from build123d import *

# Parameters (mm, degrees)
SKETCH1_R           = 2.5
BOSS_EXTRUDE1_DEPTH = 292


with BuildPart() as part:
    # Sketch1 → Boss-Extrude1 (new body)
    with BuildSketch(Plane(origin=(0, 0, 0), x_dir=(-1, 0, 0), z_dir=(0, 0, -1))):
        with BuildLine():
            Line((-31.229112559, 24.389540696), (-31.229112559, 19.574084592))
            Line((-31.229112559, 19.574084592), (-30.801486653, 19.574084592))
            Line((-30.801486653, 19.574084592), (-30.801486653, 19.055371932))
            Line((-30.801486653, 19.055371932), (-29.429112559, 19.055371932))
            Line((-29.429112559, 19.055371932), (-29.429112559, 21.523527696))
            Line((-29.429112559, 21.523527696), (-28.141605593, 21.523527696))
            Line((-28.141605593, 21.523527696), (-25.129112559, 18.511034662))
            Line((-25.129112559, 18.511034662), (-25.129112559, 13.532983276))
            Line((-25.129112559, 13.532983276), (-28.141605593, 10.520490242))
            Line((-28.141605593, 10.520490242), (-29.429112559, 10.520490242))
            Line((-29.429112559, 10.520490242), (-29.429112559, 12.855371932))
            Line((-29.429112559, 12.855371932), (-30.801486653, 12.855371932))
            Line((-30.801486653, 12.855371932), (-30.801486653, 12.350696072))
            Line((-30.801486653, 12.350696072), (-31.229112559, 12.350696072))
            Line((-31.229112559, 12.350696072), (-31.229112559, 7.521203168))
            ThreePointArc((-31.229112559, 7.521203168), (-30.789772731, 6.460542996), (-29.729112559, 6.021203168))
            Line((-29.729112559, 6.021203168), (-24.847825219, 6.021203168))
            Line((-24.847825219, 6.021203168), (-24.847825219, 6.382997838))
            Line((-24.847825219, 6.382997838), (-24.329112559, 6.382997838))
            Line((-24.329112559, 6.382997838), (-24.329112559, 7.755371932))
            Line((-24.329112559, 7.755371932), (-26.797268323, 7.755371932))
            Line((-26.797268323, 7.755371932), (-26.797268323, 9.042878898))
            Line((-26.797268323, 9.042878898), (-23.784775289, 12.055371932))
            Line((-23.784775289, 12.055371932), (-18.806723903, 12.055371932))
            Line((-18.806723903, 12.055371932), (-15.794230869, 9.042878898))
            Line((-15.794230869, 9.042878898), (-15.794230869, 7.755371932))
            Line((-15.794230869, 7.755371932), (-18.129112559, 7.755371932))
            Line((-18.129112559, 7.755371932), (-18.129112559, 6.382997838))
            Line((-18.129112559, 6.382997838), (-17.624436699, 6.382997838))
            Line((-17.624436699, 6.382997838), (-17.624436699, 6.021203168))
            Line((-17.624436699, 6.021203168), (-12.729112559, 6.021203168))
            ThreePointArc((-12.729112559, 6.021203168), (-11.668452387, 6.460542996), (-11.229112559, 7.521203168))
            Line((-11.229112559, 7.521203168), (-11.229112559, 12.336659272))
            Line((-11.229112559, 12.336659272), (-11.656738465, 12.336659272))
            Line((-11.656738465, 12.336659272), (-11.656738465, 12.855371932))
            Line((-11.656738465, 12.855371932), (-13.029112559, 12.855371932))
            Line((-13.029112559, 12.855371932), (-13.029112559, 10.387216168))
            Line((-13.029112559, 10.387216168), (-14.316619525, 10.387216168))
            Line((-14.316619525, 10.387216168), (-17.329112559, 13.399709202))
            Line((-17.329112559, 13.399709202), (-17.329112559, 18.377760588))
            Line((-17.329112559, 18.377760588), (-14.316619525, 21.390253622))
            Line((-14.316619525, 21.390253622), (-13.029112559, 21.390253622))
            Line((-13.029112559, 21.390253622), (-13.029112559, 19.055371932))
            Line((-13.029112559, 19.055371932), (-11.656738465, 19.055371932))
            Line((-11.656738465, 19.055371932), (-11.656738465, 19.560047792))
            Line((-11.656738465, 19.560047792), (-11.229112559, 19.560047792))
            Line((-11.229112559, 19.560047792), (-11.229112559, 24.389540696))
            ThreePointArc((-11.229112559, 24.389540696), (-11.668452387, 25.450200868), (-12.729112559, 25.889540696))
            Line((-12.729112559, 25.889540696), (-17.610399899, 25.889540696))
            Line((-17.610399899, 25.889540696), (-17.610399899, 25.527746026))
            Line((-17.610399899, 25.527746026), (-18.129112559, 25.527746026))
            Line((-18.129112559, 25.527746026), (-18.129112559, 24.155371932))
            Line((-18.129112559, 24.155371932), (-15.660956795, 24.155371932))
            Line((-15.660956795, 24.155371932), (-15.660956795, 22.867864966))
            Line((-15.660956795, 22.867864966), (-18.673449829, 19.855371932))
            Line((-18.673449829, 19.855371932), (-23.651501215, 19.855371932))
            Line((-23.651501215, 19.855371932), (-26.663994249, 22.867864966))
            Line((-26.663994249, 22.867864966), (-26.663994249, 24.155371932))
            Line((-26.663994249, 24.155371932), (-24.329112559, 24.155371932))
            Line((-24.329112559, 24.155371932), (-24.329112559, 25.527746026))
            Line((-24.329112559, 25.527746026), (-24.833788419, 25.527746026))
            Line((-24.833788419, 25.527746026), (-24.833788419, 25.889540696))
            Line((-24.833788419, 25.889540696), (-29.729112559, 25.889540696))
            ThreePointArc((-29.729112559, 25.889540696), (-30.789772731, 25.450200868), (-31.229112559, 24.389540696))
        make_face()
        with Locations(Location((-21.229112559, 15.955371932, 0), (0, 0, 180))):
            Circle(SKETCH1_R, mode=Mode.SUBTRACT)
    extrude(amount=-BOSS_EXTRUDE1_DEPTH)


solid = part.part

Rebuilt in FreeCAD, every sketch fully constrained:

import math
import FreeCAD as App
import Part
import Sketcher
Q = App.Units.Quantity

doc = App.newDocument("Part")
body = doc.addObject("PartDesign::Body", "Body")

sketch1 = body.newObject("Sketcher::SketchObject", "Sketch")
sketch1.AttachmentSupport = (doc.getObject("XY_Plane"), [""])
sketch1.MapMode = "FlatFace"
sketch1.addGeometry(Part.LineSegment(App.Vector(31.229113, 24.389541, 0), App.Vector(31.229113, 19.574085, 0)), False)
sketch1.addGeometry(Part.LineSegment(App.Vector(31.229113, 19.574085, 0), App.Vector(30.801487, 19.574085, 0)), False)
sketch1.addGeometry(Part.LineSegment(App.Vector(30.801487, 19.574085, 0), App.Vector(30.801487, 19.055372, 0)), False)
sketch1.addGeometry(Part.LineSegment(App.Vector(30.801487, 19.055372, 0), App.Vector(29.429113, 19.055372, 0)), False)
sketch1.addGeometry(Part.LineSegment(App.Vector(29.429113, 19.055372, 0), App.Vector(29.429113, 21.523528, 0)), False)
sketch1.addGeometry(Part.LineSegment(App.Vector(29.429113, 21.523528, 0), App.Vector(28.141606, 21.523528, 0)), False)
sketch1.addGeometry(Part.LineSegment(App.Vector(28.141606, 21.523528, 0), App.Vector(25.129113, 18.511035, 0)), False)
sketch1.addGeometry(Part.LineSegment(App.Vector(25.129113, 18.511035, 0), App.Vector(25.129113, 13.532983, 0)), False)
sketch1.addGeometry(Part.LineSegment(App.Vector(25.129113, 13.532983, 0), App.Vector(28.141606, 10.52049, 0)), False)
sketch1.addGeometry(Part.LineSegment(App.Vector(28.141606, 10.52049, 0), App.Vector(29.429113, 10.52049, 0)), False)
sketch1.addGeometry(Part.LineSegment(App.Vector(29.429113, 10.52049, 0), App.Vector(29.429113, 12.855372, 0)), False)
sketch1.addGeometry(Part.LineSegment(App.Vector(29.429113, 12.855372, 0), App.Vector(30.801487, 12.855372, 0)), False)
sketch1.addGeometry(Part.LineSegment(App.Vector(30.801487, 12.855372, 0), App.Vector(30.801487, 12.350696, 0)), False)
sketch1.addGeometry(Part.LineSegment(App.Vector(30.801487, 12.350696, 0), App.Vector(31.229113, 12.350696, 0)), False)
sketch1.addGeometry(Part.LineSegment(App.Vector(31.229113, 12.350696, 0), App.Vector(31.229113, 7.521203, 0)), False)
sketch1.addGeometry(Part.ArcOfCircle(Part.Circle(App.Vector(29.729113, 7.521203, 0), App.Vector(0, 0, 1), 1.5), math.radians(-90), math.radians(0)), False)
sketch1.addGeometry(Part.LineSegment(App.Vector(29.729113, 6.021203, 0), App.Vector(24.847825, 6.021203, 0)), False)
sketch1.addGeometry(Part.LineSegment(App.Vector(24.847825, 6.021203, 0), App.Vector(24.847825, 6.382998, 0)), False)
sketch1.addGeometry(Part.LineSegment(App.Vector(24.847825, 6.382998, 0), App.Vector(24.329113, 6.382998, 0)), False)
sketch1.addGeometry(Part.LineSegment(App.Vector(24.329113, 6.382998, 0), App.Vector(24.329113, 7.755372, 0)), False)
sketch1.addGeometry(Part.LineSegment(App.Vector(24.329113, 7.755372, 0), App.Vector(26.797268, 7.755372, 0)), False)
sketch1.addGeometry(Part.LineSegment(App.Vector(26.797268, 7.755372, 0), App.Vector(26.797268, 9.042879, 0)), False)
sketch1.addGeometry(Part.LineSegment(App.Vector(26.797268, 9.042879, 0), App.Vector(23.784775, 12.055372, 0)), False)
sketch1.addGeometry(Part.LineSegment(App.Vector(23.784775, 12.055372, 0), App.Vector(18.806724, 12.055372, 0)), False)
sketch1.addGeometry(Part.LineSegment(App.Vector(18.806724, 12.055372, 0), App.Vector(15.794231, 9.042879, 0)), False)
sketch1.addGeometry(Part.LineSegment(App.Vector(15.794231, 9.042879, 0), App.Vector(15.794231, 7.755372, 0)), False)
sketch1.addGeometry(Part.LineSegment(App.Vector(15.794231, 7.755372, 0), App.Vector(18.129113, 7.755372, 0)), False)
sketch1.addGeometry(Part.LineSegment(App.Vector(18.129113, 7.755372, 0), App.Vector(18.129113, 6.382998, 0)), False)
sketch1.addGeometry(Part.LineSegment(App.Vector(18.129113, 6.382998, 0), App.Vector(17.624437, 6.382998, 0)), False)
sketch1.addGeometry(Part.LineSegment(App.Vector(17.624437, 6.382998, 0), App.Vector(17.624437, 6.021203, 0)), False)
sketch1.addGeometry(Part.LineSegment(App.Vector(17.624437, 6.021203, 0), App.Vector(12.729113, 6.021203, 0)), False)
sketch1.addGeometry(Part.ArcOfCircle(Part.Circle(App.Vector(12.729113, 7.521203, 0), App.Vector(0, 0, 1), 1.5), math.radians(180), math.radians(270)), False)
sketch1.addGeometry(Part.LineSegment(App.Vector(11.229113, 7.521203, 0), App.Vector(11.229113, 12.336659, 0)), False)
sketch1.addGeometry(Part.LineSegment(App.Vector(11.229113, 12.336659, 0), App.Vector(11.656738, 12.336659, 0)), False)
sketch1.addGeometry(Part.LineSegment(App.Vector(11.656738, 12.336659, 0), App.Vector(11.656738, 12.855372, 0)), False)
sketch1.addGeometry(Part.LineSegment(App.Vector(11.656738, 12.855372, 0), App.Vector(13.029113, 12.855372, 0)), False)
sketch1.addGeometry(Part.LineSegment(App.Vector(13.029113, 12.855372, 0), App.Vector(13.029113, 10.387216, 0)), False)
sketch1.addGeometry(Part.LineSegment(App.Vector(13.029113, 10.387216, 0), App.Vector(14.31662, 10.387216, 0)), False)
sketch1.addGeometry(Part.LineSegment(App.Vector(14.31662, 10.387216, 0), App.Vector(17.329113, 13.399709, 0)), False)
sketch1.addGeometry(Part.LineSegment(App.Vector(17.329113, 13.399709, 0), App.Vector(17.329113, 18.377761, 0)), False)
sketch1.addGeometry(Part.LineSegment(App.Vector(17.329113, 18.377761, 0), App.Vector(14.31662, 21.390254, 0)), False)
sketch1.addGeometry(Part.LineSegment(App.Vector(14.31662, 21.390254, 0), App.Vector(13.029113, 21.390254, 0)), False)
sketch1.addGeometry(Part.LineSegment(App.Vector(13.029113, 21.390254, 0), App.Vector(13.029113, 19.055372, 0)), False)
sketch1.addGeometry(Part.LineSegment(App.Vector(13.029113, 19.055372, 0), App.Vector(11.656738, 19.055372, 0)), False)
sketch1.addGeometry(Part.LineSegment(App.Vector(11.656738, 19.055372, 0), App.Vector(11.656738, 19.560048, 0)), False)
sketch1.addGeometry(Part.LineSegment(App.Vector(11.656738, 19.560048, 0), App.Vector(11.229113, 19.560048, 0)), False)
sketch1.addGeometry(Part.LineSegment(App.Vector(11.229113, 19.560048, 0), App.Vector(11.229113, 24.389541, 0)), False)
sketch1.addGeometry(Part.ArcOfCircle(Part.Circle(App.Vector(12.729113, 24.389541, 0), App.Vector(0, 0, 1), 1.5), math.radians(90), math.radians(180)), False)
sketch1.addGeometry(Part.LineSegment(App.Vector(12.729113, 25.889541, 0), App.Vector(17.6104, 25.889541, 0)), False)
sketch1.addGeometry(Part.LineSegment(App.Vector(17.6104, 25.889541, 0), App.Vector(17.6104, 25.527746, 0)), False)
sketch1.addGeometry(Part.LineSegment(App.Vector(17.6104, 25.527746, 0), App.Vector(18.129113, 25.527746, 0)), False)
sketch1.addGeometry(Part.LineSegment(App.Vector(18.129113, 25.527746, 0), App.Vector(18.129113, 24.155372, 0)), False)
sketch1.addGeometry(Part.LineSegment(App.Vector(18.129113, 24.155372, 0), App.Vector(15.660957, 24.155372, 0)), False)
sketch1.addGeometry(Part.LineSegment(App.Vector(15.660957, 24.155372, 0), App.Vector(15.660957, 22.867865, 0)), False)
sketch1.addGeometry(Part.LineSegment(App.Vector(15.660957, 22.867865, 0), App.Vector(18.67345, 19.855372, 0)), False)
sketch1.addGeometry(Part.LineSegment(App.Vector(18.67345, 19.855372, 0), App.Vector(23.651501, 19.855372, 0)), False)
sketch1.addGeometry(Part.LineSegment(App.Vector(23.651501, 19.855372, 0), App.Vector(26.663994, 22.867865, 0)), False)
sketch1.addGeometry(Part.LineSegment(App.Vector(26.663994, 22.867865, 0), App.Vector(26.663994, 24.155372, 0)), False)
sketch1.addGeometry(Part.LineSegment(App.Vector(26.663994, 24.155372, 0), App.Vector(24.329113, 24.155372, 0)), False)
sketch1.addGeometry(Part.LineSegment(App.Vector(24.329113, 24.155372, 0), App.Vector(24.329113, 25.527746, 0)), False)
sketch1.addGeometry(Part.LineSegment(App.Vector(24.329113, 25.527746, 0), App.Vector(24.833788, 25.527746, 0)), False)
sketch1.addGeometry(Part.LineSegment(App.Vector(24.833788, 25.527746, 0), App.Vector(24.833788, 25.889541, 0)), False)
sketch1.addGeometry(Part.LineSegment(App.Vector(24.833788, 25.889541, 0), App.Vector(29.729113, 25.889541, 0)), False)
sketch1.addGeometry(Part.ArcOfCircle(Part.Circle(App.Vector(29.729113, 24.389541, 0), App.Vector(0, 0, 1), 1.5), math.radians(0), math.radians(90)), False)
sketch1.addGeometry(Part.Circle(App.Vector(21.229113, 15.955372, 0), App.Vector(0, 0, 1), 2.5), False)
sketch1.addConstraint(Sketcher.Constraint("Coincident", 0, 2, 1, 1))
sketch1.addConstraint(Sketcher.Constraint("Coincident", 1, 2, 2, 1))
sketch1.addConstraint(Sketcher.Constraint("Coincident", 2, 2, 3, 1))
sketch1.addConstraint(Sketcher.Constraint("Coincident", 3, 2, 4, 1))
sketch1.addConstraint(Sketcher.Constraint("Coincident", 4, 2, 5, 1))
sketch1.addConstraint(Sketcher.Constraint("Coincident", 5, 2, 6, 1))
sketch1.addConstraint(Sketcher.Constraint("Coincident", 6, 2, 7, 1))
sketch1.addConstraint(Sketcher.Constraint("Coincident", 7, 2, 8, 1))
sketch1.addConstraint(Sketcher.Constraint("Coincident", 8, 2, 9, 1))
sketch1.addConstraint(Sketcher.Constraint("Coincident", 9, 2, 10, 1))
sketch1.addConstraint(Sketcher.Constraint("Coincident", 10, 2, 11, 1))
sketch1.addConstraint(Sketcher.Constraint("Coincident", 11, 2, 12, 1))
sketch1.addConstraint(Sketcher.Constraint("Coincident", 12, 2, 13, 1))
sketch1.addConstraint(Sketcher.Constraint("Coincident", 13, 2, 14, 1))
sketch1.addConstraint(Sketcher.Constraint("Tangent", 14, 2, 15, 2))
sketch1.addConstraint(Sketcher.Constraint("Tangent", 15, 1, 16, 1))
sketch1.addConstraint(Sketcher.Constraint("Coincident", 16, 2, 17, 1))
sketch1.addConstraint(Sketcher.Constraint("Coincident", 17, 2, 18, 1))
sketch1.addConstraint(Sketcher.Constraint("Coincident", 18, 2, 19, 1))
sketch1.addConstraint(Sketcher.Constraint("Coincident", 19, 2, 20, 1))
sketch1.addConstraint(Sketcher.Constraint("Coincident", 20, 2, 21, 1))
sketch1.addConstraint(Sketcher.Constraint("Coincident", 21, 2, 22, 1))
sketch1.addConstraint(Sketcher.Constraint("Coincident", 22, 2, 23, 1))
sketch1.addConstraint(Sketcher.Constraint("Coincident", 23, 2, 24, 1))
sketch1.addConstraint(Sketcher.Constraint("Coincident", 24, 2, 25, 1))
sketch1.addConstraint(Sketcher.Constraint("Coincident", 25, 2, 26, 1))
sketch1.addConstraint(Sketcher.Constraint("Coincident", 26, 2, 27, 1))
sketch1.addConstraint(Sketcher.Constraint("Coincident", 27, 2, 28, 1))
sketch1.addConstraint(Sketcher.Constraint("Coincident", 28, 2, 29, 1))
sketch1.addConstraint(Sketcher.Constraint("Coincident", 29, 2, 30, 1))
sketch1.addConstraint(Sketcher.Constraint("Tangent", 30, 2, 31, 2))
sketch1.addConstraint(Sketcher.Constraint("Tangent", 31, 1, 32, 1))
sketch1.addConstraint(Sketcher.Constraint("Coincident", 32, 2, 33, 1))
sketch1.addConstraint(Sketcher.Constraint("Coincident", 33, 2, 34, 1))
sketch1.addConstraint(Sketcher.Constraint("Coincident", 34, 2, 35, 1))
sketch1.addConstraint(Sketcher.Constraint("Coincident", 35, 2, 36, 1))
sketch1.addConstraint(Sketcher.Constraint("Coincident", 36, 2, 37, 1))
sketch1.addConstraint(Sketcher.Constraint("Coincident", 37, 2, 38, 1))
sketch1.addConstraint(Sketcher.Constraint("Coincident", 38, 2, 39, 1))
sketch1.addConstraint(Sketcher.Constraint("Coincident", 39, 2, 40, 1))
sketch1.addConstraint(Sketcher.Constraint("Coincident", 40, 2, 41, 1))
sketch1.addConstraint(Sketcher.Constraint("Coincident", 41, 2, 42, 1))
sketch1.addConstraint(Sketcher.Constraint("Coincident", 42, 2, 43, 1))
sketch1.addConstraint(Sketcher.Constraint("Coincident", 43, 2, 44, 1))
sketch1.addConstraint(Sketcher.Constraint("Coincident", 44, 2, 45, 1))
sketch1.addConstraint(Sketcher.Constraint("Coincident", 45, 2, 46, 1))
sketch1.addConstraint(Sketcher.Constraint("Tangent", 46, 2, 47, 2))
sketch1.addConstraint(Sketcher.Constraint("Tangent", 47, 1, 48, 1))
sketch1.addConstraint(Sketcher.Constraint("Coincident", 48, 2, 49, 1))
sketch1.addConstraint(Sketcher.Constraint("Coincident", 49, 2, 50, 1))
sketch1.addConstraint(Sketcher.Constraint("Coincident", 50, 2, 51, 1))
sketch1.addConstraint(Sketcher.Constraint("Coincident", 51, 2, 52, 1))
sketch1.addConstraint(Sketcher.Constraint("Coincident", 52, 2, 53, 1))
sketch1.addConstraint(Sketcher.Constraint("Coincident", 53, 2, 54, 1))
sketch1.addConstraint(Sketcher.Constraint("Coincident", 54, 2, 55, 1))
sketch1.addConstraint(Sketcher.Constraint("Coincident", 55, 2, 56, 1))
sketch1.addConstraint(Sketcher.Constraint("Coincident", 56, 2, 57, 1))
sketch1.addConstraint(Sketcher.Constraint("Coincident", 57, 2, 58, 1))
sketch1.addConstraint(Sketcher.Constraint("Coincident", 58, 2, 59, 1))
sketch1.addConstraint(Sketcher.Constraint("Coincident", 59, 2, 60, 1))
sketch1.addConstraint(Sketcher.Constraint("Coincident", 60, 2, 61, 1))
sketch1.addConstraint(Sketcher.Constraint("Coincident", 61, 2, 62, 1))
sketch1.addConstraint(Sketcher.Constraint("Tangent", 62, 2, 63, 2))
sketch1.addConstraint(Sketcher.Constraint("Tangent", 63, 1, 0, 1))
sketch1.addConstraint(Sketcher.Constraint("Vertical", 0))
sketch1.addConstraint(Sketcher.Constraint("Horizontal", 1))
sketch1.addConstraint(Sketcher.Constraint("Vertical", 2))
sketch1.addConstraint(Sketcher.Constraint("Horizontal", 3))
sketch1.addConstraint(Sketcher.Constraint("Vertical", 4))
sketch1.addConstraint(Sketcher.Constraint("Horizontal", 5))
sketch1.addConstraint(Sketcher.Constraint("Vertical", 7))
sketch1.addConstraint(Sketcher.Constraint("Horizontal", 9))
sketch1.addConstraint(Sketcher.Constraint("Vertical", 10))
sketch1.addConstraint(Sketcher.Constraint("Horizontal", 11))
sketch1.addConstraint(Sketcher.Constraint("Vertical", 12))
sketch1.addConstraint(Sketcher.Constraint("Horizontal", 13))
sketch1.addConstraint(Sketcher.Constraint("Vertical", 14))
sketch1.addConstraint(Sketcher.Constraint("Horizontal", 16))
sketch1.addConstraint(Sketcher.Constraint("Vertical", 17))
sketch1.addConstraint(Sketcher.Constraint("Horizontal", 18))
sketch1.addConstraint(Sketcher.Constraint("Vertical", 19))
sketch1.addConstraint(Sketcher.Constraint("Horizontal", 20))
sketch1.addConstraint(Sketcher.Constraint("Vertical", 21))
sketch1.addConstraint(Sketcher.Constraint("Horizontal", 23))
sketch1.addConstraint(Sketcher.Constraint("Vertical", 25))
sketch1.addConstraint(Sketcher.Constraint("Horizontal", 26))
sketch1.addConstraint(Sketcher.Constraint("Vertical", 27))
sketch1.addConstraint(Sketcher.Constraint("Horizontal", 28))
sketch1.addConstraint(Sketcher.Constraint("Vertical", 29))
sketch1.addConstraint(Sketcher.Constraint("Horizontal", 30))
sketch1.addConstraint(Sketcher.Constraint("Vertical", 32))
sketch1.addConstraint(Sketcher.Constraint("Horizontal", 33))
sketch1.addConstraint(Sketcher.Constraint("Vertical", 34))
sketch1.addConstraint(Sketcher.Constraint("Horizontal", 35))
sketch1.addConstraint(Sketcher.Constraint("Vertical", 36))
sketch1.addConstraint(Sketcher.Constraint("Horizontal", 37))
sketch1.addConstraint(Sketcher.Constraint("Vertical", 39))
sketch1.addConstraint(Sketcher.Constraint("Horizontal", 41))
sketch1.addConstraint(Sketcher.Constraint("Vertical", 42))
sketch1.addConstraint(Sketcher.Constraint("Horizontal", 43))
sketch1.addConstraint(Sketcher.Constraint("Vertical", 44))
sketch1.addConstraint(Sketcher.Constraint("Horizontal", 45))
sketch1.addConstraint(Sketcher.Constraint("Vertical", 46))
sketch1.addConstraint(Sketcher.Constraint("Horizontal", 48))
sketch1.addConstraint(Sketcher.Constraint("Vertical", 49))
sketch1.addConstraint(Sketcher.Constraint("Horizontal", 50))
sketch1.addConstraint(Sketcher.Constraint("Vertical", 51))
sketch1.addConstraint(Sketcher.Constraint("Horizontal", 52))
sketch1.addConstraint(Sketcher.Constraint("Vertical", 53))
sketch1.addConstraint(Sketcher.Constraint("Horizontal", 55))
sketch1.addConstraint(Sketcher.Constraint("Vertical", 57))
sketch1.addConstraint(Sketcher.Constraint("Horizontal", 58))
sketch1.addConstraint(Sketcher.Constraint("Vertical", 59))
sketch1.addConstraint(Sketcher.Constraint("Horizontal", 60))
sketch1.addConstraint(Sketcher.Constraint("Vertical", 61))
sketch1.addConstraint(Sketcher.Constraint("Horizontal", 62))
sketch1.addConstraint(Sketcher.Constraint("Equal", 15, 31))
sketch1.addConstraint(Sketcher.Constraint("Equal", 31, 47))
sketch1.addConstraint(Sketcher.Constraint("Equal", 47, 63))
sketch1.addConstraint(Sketcher.Constraint("Perpendicular", 6, 8))
sketch1.addConstraint(Sketcher.Constraint("Parallel", 8, 22))
sketch1.addConstraint(Sketcher.Constraint("Perpendicular", 22, 24))
sketch1.addConstraint(Sketcher.Constraint("Parallel", 24, 38))
sketch1.addConstraint(Sketcher.Constraint("Perpendicular", 38, 40))
sketch1.addConstraint(Sketcher.Constraint("Parallel", 40, 54))
sketch1.addConstraint(Sketcher.Constraint("Perpendicular", 54, 56))
sketch1.addConstraint(Sketcher.Constraint("Horizontal", 15, 3, 31, 3))
sketch1.addConstraint(Sketcher.Constraint("Horizontal", 47, 3, 63, 3))
sketch1.addConstraint(Sketcher.Constraint("Horizontal", 21, 2, 24, 2))
sketch1.addConstraint(Sketcher.Constraint("Horizontal", 20, 2, 25, 2))
sketch1.addConstraint(Sketcher.Constraint("Horizontal", 18, 2, 27, 2))
sketch1.addConstraint(Sketcher.Constraint("Horizontal", 11, 2, 34, 2))
sketch1.addConstraint(Sketcher.Constraint("Horizontal", 3, 2, 42, 2))
sketch1.addConstraint(Sketcher.Constraint("Horizontal", 53, 2, 56, 2))
sketch1.addConstraint(Sketcher.Constraint("Horizontal", 52, 2, 57, 2))
sketch1.addConstraint(Sketcher.Constraint("Horizontal", 50, 2, 59, 2))
sketch1.addConstraint(Sketcher.Constraint("Vertical", 31, 3, 47, 3))
sketch1.addConstraint(Sketcher.Constraint("Vertical", 15, 3, 63, 3))
sketch1.addConstraint(Sketcher.Constraint("Vertical", 5, 2, 8, 2))
sketch1.addConstraint(Sketcher.Constraint("Vertical", 4, 2, 9, 2))
sketch1.addConstraint(Sketcher.Constraint("Vertical", 2, 2, 11, 2))
sketch1.addConstraint(Sketcher.Constraint("Vertical", 37, 2, 40, 2))
sketch1.addConstraint(Sketcher.Constraint("Vertical", 36, 2, 41, 2))
sketch1.addConstraint(Sketcher.Constraint("Vertical", 34, 2, 43, 2))
sketch1.addConstraint(Sketcher.Constraint("Vertical", 27, 2, 50, 2))
sketch1.addConstraint(Sketcher.Constraint("Vertical", 19, 2, 58, 2))
sketch1.addConstraint(Sketcher.Constraint("Equal", 13, 33))
sketch1.addConstraint(Sketcher.Constraint("Equal", 11, 35))
sketch1.addConstraint(Sketcher.Constraint("Equal", 9, 37))
sketch1.addConstraint(Sketcher.Constraint("Equal", 16, 48))
sketch1.addConstraint(Sketcher.Constraint("Equal", 18, 50))
sketch1.addConstraint(Sketcher.Constraint("Equal", 20, 52))
sketch1.addConstraint(Sketcher.Constraint("Equal", 23, 55))
sketch1.addConstraint(Sketcher.Constraint("Equal", 26, 58))
sketch1.addConstraint(Sketcher.Constraint("Equal", 28, 60))
sketch1.addConstraint(Sketcher.Constraint("Equal", 50, 2))
sketch1.addConstraint(Sketcher.Constraint("Equal", 52, 4))
sketch1.addConstraint(Sketcher.Constraint("Equal", 55, 7))
sketch1.addConstraint(Sketcher.Constraint("Equal", 58, 10))
sketch1.addConstraint(Sketcher.Constraint("Equal", 60, 12))
sketch1.addConstraint(Sketcher.Constraint("Equal", 43, 19))
sketch1.addConstraint(Sketcher.Constraint("Equal", 41, 21))
sketch1.addConstraint(Sketcher.Constraint("Equal", 0, 32))
sketch1.addConstraint(Sketcher.Constraint("Equal", 2, 34))
sketch1.addConstraint(Sketcher.Constraint("Equal", 4, 36))
sketch1.addConstraint(Sketcher.Constraint("Equal", 7, 39))
sketch1.addConstraint(Sketcher.Constraint("Equal", 10, 42))
sketch1.addConstraint(Sketcher.Constraint("Equal", 12, 44))
sketch1.addConstraint(Sketcher.Constraint("Equal", 29, 49))
sketch1.addConstraint(Sketcher.Constraint("Equal", 27, 51))
sketch1.addConstraint(Sketcher.Constraint("Equal", 25, 53))
sketch1.addConstraint(Sketcher.Constraint("Equal", 6, 8))
sketch1.addConstraint(Sketcher.Constraint("Equal", 8, 22))
sketch1.addConstraint(Sketcher.Constraint("Diameter", 64, Q("5 mm")))
sketch1.addConstraint(Sketcher.Constraint("Radius", 15, Q("1.5 mm")))
sketch1.addConstraint(Sketcher.Constraint("DistanceX", 23, 2, 23, 1, Q("4.978051 mm")))
sketch1.addConstraint(Sketcher.Constraint("DistanceX", 26, 1, 26, 2, Q("2.334882 mm")))
sketch1.addConstraint(Sketcher.Constraint("DistanceX", -1, 1, 48, 2, Q("17.6104 mm")))
sketch1.addConstraint(Sketcher.Constraint("DistanceX", -1, 1, 55, 2, Q("23.651501 mm")))
sketch1.addConstraint(Sketcher.Constraint("Distance", 6, Q("4.260309 mm")))
sketch1.addConstraint(Sketcher.Constraint("DistanceX", 1, 2, 1, 1, Q("0.427626 mm")))
sketch1.addConstraint(Sketcher.Constraint("DistanceX", 3, 2, 3, 1, Q("1.372374 mm")))
sketch1.addConstraint(Sketcher.Constraint("DistanceX", 5, 2, 5, 1, Q("1.287507 mm")))
sketch1.addConstraint(Sketcher.Constraint("DistanceX", 16, 2, 16, 1, Q("4.881287 mm")))
sketch1.addConstraint(Sketcher.Constraint("DistanceX", 18, 2, 18, 1, Q("0.518713 mm")))
sketch1.addConstraint(Sketcher.Constraint("DistanceX", 28, 2, 28, 1, Q("0.504676 mm")))
sketch1.addConstraint(Sketcher.Constraint("DistanceY", 0, 2, 0, 1, Q("4.815456 mm")))
sketch1.addConstraint(Sketcher.Constraint("DistanceY", 17, 1, 17, 2, Q("0.361795 mm")))
sketch1.addConstraint(Sketcher.Constraint("DistanceY", -1, 1, 47, 3, Q("24.389541 mm")))
sketch1.addConstraint(Sketcher.Constraint("DistanceY", -1, 1, 64, 3, Q("15.955372 mm")))
sketch1.addConstraint(Sketcher.Constraint("DistanceX", -1, 1, 64, 3, Q("21.229113 mm")))
pad1 = body.newObject("PartDesign::Pad", "Pad")
pad1.Profile = sketch1
pad1.Length = 292

doc.recompute()
